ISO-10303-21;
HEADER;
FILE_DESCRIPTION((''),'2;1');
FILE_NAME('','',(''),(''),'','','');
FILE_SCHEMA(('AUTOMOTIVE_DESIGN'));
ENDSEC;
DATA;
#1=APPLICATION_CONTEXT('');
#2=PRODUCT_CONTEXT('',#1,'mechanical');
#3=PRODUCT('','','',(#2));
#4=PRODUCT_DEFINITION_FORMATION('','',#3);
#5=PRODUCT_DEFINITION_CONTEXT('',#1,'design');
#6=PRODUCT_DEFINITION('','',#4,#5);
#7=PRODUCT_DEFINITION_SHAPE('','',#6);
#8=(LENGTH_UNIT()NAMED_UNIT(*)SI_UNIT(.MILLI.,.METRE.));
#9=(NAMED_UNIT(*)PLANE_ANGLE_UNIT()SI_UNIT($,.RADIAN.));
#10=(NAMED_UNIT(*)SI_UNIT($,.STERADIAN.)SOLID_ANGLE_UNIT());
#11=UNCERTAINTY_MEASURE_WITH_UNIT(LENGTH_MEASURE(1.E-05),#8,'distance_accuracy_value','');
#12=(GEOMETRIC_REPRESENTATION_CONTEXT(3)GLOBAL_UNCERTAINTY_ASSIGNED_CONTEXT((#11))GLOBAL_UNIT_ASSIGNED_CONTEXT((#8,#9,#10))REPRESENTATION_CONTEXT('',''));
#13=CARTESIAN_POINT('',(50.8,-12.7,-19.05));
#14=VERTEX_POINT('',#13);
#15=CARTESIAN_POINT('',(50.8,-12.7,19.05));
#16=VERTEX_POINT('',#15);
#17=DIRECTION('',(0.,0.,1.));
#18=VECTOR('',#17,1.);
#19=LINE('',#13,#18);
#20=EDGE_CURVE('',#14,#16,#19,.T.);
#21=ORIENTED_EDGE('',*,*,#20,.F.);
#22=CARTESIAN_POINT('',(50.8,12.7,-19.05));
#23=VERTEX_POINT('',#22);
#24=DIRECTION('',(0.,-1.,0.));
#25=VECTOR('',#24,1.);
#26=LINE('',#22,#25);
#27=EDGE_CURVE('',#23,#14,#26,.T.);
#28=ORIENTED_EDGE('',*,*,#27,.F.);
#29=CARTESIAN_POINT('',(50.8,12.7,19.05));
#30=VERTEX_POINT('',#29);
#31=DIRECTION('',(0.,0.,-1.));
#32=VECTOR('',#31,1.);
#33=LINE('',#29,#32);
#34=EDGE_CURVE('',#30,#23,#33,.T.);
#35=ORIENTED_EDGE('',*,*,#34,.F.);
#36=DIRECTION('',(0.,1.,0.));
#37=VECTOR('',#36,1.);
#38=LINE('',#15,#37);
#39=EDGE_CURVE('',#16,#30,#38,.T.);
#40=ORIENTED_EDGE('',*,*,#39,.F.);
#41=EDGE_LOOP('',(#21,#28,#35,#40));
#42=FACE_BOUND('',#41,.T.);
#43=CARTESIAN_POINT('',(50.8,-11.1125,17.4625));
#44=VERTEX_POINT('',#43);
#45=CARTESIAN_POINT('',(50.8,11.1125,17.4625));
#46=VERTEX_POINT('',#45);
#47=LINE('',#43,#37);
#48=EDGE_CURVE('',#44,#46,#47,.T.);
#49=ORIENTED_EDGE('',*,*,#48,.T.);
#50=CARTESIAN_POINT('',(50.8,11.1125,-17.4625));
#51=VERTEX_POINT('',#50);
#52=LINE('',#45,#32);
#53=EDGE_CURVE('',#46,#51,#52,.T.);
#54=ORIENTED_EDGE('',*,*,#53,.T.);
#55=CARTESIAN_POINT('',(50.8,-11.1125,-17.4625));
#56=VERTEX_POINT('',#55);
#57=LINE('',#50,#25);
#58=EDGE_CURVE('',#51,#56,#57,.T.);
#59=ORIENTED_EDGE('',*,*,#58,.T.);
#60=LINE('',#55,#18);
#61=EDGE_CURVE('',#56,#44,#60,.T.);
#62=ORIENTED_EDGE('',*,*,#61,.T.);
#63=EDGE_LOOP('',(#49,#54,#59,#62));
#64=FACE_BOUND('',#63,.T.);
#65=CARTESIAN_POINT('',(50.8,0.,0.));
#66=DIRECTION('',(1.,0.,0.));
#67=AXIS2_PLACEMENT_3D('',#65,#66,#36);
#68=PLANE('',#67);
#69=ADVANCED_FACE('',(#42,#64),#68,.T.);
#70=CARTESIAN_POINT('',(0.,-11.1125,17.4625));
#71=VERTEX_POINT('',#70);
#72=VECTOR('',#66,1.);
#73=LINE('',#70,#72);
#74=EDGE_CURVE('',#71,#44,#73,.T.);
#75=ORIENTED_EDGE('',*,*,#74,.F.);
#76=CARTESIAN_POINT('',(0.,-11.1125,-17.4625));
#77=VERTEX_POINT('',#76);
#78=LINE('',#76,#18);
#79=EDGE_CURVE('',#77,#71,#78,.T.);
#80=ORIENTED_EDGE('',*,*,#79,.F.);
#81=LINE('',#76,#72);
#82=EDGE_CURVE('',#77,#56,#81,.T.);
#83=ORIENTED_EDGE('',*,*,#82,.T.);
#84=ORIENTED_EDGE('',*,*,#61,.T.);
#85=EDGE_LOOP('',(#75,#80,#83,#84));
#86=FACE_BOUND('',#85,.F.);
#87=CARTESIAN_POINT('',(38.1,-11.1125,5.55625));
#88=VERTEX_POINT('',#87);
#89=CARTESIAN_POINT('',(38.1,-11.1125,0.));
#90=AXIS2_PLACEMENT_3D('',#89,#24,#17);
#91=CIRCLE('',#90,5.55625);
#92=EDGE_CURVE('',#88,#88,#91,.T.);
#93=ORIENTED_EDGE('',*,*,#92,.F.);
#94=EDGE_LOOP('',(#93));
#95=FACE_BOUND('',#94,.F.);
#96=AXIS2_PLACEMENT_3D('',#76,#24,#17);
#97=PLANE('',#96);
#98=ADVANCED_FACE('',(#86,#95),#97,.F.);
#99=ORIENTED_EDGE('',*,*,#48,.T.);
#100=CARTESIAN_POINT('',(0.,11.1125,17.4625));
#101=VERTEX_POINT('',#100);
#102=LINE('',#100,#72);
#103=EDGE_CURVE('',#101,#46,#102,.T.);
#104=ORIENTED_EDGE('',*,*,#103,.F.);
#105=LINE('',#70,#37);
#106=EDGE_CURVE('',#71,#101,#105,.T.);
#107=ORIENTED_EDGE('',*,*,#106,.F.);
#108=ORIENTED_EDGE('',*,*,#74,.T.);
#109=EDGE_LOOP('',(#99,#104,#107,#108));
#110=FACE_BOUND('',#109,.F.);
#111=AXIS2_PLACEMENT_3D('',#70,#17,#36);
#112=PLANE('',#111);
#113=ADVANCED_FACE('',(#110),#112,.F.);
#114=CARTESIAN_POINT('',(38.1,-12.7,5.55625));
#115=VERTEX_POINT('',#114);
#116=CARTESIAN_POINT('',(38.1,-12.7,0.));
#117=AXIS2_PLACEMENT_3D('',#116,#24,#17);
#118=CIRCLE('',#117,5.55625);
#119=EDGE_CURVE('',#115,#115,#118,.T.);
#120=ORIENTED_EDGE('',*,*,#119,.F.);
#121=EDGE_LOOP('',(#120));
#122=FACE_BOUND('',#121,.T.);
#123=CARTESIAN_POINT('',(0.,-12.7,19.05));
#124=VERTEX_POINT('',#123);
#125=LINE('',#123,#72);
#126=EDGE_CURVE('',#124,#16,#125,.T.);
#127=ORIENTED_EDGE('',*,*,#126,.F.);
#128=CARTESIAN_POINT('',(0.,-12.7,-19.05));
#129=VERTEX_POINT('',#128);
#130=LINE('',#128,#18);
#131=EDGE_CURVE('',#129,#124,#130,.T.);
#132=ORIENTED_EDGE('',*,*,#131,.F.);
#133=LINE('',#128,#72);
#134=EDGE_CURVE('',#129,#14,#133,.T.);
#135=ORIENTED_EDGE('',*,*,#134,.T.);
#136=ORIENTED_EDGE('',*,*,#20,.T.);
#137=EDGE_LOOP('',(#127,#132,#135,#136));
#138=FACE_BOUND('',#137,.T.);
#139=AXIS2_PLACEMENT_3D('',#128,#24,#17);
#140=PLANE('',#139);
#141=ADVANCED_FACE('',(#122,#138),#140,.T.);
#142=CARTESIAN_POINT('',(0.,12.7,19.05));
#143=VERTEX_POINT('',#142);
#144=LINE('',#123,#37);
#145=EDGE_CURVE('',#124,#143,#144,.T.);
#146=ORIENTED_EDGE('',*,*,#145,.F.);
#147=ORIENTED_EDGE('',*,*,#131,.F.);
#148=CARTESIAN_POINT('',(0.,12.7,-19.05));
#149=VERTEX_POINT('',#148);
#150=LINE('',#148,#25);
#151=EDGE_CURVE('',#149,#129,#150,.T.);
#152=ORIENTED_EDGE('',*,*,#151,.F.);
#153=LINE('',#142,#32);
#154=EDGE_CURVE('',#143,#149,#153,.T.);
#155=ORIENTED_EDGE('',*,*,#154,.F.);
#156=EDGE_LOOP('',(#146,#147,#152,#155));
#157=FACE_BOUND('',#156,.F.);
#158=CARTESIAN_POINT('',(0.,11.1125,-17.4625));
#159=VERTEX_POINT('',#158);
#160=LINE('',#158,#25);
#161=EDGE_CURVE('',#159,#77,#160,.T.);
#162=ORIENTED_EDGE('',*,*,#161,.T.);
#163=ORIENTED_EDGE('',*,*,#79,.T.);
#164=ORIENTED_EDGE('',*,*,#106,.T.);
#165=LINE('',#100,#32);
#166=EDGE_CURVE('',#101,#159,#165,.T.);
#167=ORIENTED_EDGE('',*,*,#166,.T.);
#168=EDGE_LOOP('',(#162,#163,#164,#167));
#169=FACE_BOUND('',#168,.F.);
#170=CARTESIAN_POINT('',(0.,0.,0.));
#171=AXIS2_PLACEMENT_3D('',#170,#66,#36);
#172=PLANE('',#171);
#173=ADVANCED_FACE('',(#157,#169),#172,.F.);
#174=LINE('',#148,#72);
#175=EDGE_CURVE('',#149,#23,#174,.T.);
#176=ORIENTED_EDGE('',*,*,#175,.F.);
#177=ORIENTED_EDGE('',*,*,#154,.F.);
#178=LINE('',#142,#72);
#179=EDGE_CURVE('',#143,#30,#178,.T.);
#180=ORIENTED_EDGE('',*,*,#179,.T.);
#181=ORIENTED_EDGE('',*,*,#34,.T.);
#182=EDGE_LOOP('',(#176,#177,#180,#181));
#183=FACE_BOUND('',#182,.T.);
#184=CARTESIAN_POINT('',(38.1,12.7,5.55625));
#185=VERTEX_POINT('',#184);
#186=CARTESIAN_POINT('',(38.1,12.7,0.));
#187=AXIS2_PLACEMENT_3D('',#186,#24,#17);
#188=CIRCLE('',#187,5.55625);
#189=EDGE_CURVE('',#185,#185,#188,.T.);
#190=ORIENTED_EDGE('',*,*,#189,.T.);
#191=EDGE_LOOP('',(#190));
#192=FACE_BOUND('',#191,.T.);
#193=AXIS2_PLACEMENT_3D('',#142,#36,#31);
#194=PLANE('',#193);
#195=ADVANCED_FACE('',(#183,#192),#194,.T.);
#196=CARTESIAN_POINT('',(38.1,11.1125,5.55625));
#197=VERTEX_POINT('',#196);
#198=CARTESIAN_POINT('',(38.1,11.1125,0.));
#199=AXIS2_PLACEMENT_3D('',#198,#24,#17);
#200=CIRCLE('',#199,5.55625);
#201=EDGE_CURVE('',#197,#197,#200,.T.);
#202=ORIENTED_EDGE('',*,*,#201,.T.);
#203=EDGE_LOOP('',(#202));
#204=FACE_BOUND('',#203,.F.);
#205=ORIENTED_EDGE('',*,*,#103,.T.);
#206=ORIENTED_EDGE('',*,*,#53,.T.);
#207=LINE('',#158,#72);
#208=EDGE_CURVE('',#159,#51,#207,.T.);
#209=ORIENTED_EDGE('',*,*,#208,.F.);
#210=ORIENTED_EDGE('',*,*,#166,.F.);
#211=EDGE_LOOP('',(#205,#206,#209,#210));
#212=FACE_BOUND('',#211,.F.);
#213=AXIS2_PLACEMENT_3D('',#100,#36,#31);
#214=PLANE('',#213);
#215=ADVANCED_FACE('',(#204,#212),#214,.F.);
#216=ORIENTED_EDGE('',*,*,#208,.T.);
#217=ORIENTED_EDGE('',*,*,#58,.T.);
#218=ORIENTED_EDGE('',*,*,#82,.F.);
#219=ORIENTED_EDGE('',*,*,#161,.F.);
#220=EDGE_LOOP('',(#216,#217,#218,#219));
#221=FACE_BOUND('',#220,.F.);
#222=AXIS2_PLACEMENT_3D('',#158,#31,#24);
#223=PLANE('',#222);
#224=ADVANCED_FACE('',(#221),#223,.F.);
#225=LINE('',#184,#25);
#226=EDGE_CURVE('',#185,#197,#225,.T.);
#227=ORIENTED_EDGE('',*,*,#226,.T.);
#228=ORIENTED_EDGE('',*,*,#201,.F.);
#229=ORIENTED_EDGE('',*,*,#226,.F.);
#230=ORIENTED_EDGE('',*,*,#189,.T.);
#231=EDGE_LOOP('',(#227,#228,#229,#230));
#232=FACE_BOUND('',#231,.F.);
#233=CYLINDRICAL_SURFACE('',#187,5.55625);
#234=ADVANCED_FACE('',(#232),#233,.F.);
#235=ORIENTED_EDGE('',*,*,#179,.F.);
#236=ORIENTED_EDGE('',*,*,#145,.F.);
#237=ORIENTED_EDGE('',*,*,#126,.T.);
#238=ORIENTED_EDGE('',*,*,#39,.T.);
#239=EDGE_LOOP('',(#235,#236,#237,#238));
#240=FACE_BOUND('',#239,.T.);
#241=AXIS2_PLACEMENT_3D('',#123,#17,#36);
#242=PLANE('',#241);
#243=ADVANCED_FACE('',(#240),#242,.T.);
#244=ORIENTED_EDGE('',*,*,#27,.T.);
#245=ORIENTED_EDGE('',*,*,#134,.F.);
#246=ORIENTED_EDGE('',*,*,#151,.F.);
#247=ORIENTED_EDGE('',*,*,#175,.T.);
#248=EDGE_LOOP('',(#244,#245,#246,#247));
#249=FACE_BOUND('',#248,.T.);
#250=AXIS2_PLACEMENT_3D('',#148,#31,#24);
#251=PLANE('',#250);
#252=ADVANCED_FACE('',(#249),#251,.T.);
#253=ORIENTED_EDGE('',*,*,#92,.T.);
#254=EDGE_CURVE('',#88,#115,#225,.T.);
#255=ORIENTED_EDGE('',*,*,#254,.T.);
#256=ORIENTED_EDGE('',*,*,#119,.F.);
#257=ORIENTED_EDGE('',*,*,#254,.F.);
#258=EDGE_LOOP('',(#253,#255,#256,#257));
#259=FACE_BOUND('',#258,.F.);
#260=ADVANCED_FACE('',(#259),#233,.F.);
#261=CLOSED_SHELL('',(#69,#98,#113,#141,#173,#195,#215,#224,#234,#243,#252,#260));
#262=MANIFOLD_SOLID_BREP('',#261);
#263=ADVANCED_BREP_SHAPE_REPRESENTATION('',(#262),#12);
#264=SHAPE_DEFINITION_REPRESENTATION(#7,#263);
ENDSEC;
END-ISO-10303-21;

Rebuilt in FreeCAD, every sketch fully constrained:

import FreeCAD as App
import Part
import Sketcher
from FreeCAD import Vector
Q = App.Units.Quantity


def add_polygon(sketch, points):
    """Adds a closed chain of lines whose ends are joined by coincident constraints."""
    first, n = sketch.GeometryCount, len(points)
    for a, b in zip(points, points[1:] + points[:1]):
        sketch.addGeometry(Part.LineSegment(App.Vector(*a, 0), App.Vector(*b, 0)), False)
    for i in range(n):
        sketch.addConstraint(Sketcher.Constraint("Coincident", first + i, 2, first + (i + 1) % n, 1))

doc = App.newDocument("Part")
body = doc.addObject("PartDesign::Body", "Body")

sketch1 = body.newObject("Sketcher::SketchObject", "Sketch")
sketch1.AttachmentSupport = (doc.getObject("YZ_Plane"), [""])
sketch1.MapMode = "FlatFace"
add_polygon(sketch1, [(13, 19), (-13, 19), (-13, -19), (13, -19)])
add_polygon(sketch1, [(-11, -17), (-11, 17), (11, 17), (11, -17)])
sketch1.addConstraint(Sketcher.Constraint("Horizontal", 0))
sketch1.addConstraint(Sketcher.Constraint("Vertical", 1))
sketch1.addConstraint(Sketcher.Constraint("Horizontal", 2))
sketch1.addConstraint(Sketcher.Constraint("Vertical", 3))
sketch1.addConstraint(Sketcher.Constraint("Vertical", 4))
sketch1.addConstraint(Sketcher.Constraint("Horizontal", 5))
sketch1.addConstraint(Sketcher.Constraint("Vertical", 6))
sketch1.addConstraint(Sketcher.Constraint("Horizontal", 7))
sketch1.addConstraint(Sketcher.Constraint("Symmetric", 0, 2, 2, 2, -1, 1))
sketch1.addConstraint(Sketcher.Constraint("Symmetric", 4, 2, 6, 2, -1, 1))
sketch1.addConstraint(Sketcher.Constraint("DistanceX", 0, 2, 0, 1, Q("1 in")))
sketch1.addConstraint(Sketcher.Constraint("DistanceY", 1, 2, 1, 1, Q("1.5 in")))
sketch1.addConstraint(Sketcher.Constraint("DistanceX", 0, 2, 4, 2, Q("0.0625 in")))
sketch1.addConstraint(Sketcher.Constraint("DistanceY", 4, 2, 0, 2, Q("0.0625 in")))
pad1 = body.newObject("PartDesign::Pad", "Pad")
pad1.Profile = sketch1
pad1.Length = Q("2 in")

sketch2 = body.newObject("Sketcher::SketchObject", "Sketch001")
sketch2.AttachmentSupport = (doc.getObject("XZ_Plane"), [""])
sketch2.MapMode = "FlatFace"
sketch2.AttachmentOffset = App.Placement(Vector(0, 0, -0.5 * 25.4), App.Rotation())
sketch2.addGeometry(Part.Circle(Vector(38, 0, 0), Vector(0, 0, 1), 6), False)
sketch2.addConstraint(Sketcher.Constraint("PointOnObject", 0, 3, -1))
sketch2.addConstraint(Sketcher.Constraint("Diameter", 0, Q("0.4375 in")))
sketch2.addConstraint(Sketcher.Constraint("DistanceX", -1, 1, 0, 3, Q("1.5 in")))
doc.recompute()
hole = body.newObject("PartDesign::Hole", "Hole")
hole.Profile = sketch2
hole.ThreadType = "None"
hole.Diameter = Q("0.4375 in")
hole.DepthType = "ThroughAll"
hole.Reversed = True

doc.recompute()
